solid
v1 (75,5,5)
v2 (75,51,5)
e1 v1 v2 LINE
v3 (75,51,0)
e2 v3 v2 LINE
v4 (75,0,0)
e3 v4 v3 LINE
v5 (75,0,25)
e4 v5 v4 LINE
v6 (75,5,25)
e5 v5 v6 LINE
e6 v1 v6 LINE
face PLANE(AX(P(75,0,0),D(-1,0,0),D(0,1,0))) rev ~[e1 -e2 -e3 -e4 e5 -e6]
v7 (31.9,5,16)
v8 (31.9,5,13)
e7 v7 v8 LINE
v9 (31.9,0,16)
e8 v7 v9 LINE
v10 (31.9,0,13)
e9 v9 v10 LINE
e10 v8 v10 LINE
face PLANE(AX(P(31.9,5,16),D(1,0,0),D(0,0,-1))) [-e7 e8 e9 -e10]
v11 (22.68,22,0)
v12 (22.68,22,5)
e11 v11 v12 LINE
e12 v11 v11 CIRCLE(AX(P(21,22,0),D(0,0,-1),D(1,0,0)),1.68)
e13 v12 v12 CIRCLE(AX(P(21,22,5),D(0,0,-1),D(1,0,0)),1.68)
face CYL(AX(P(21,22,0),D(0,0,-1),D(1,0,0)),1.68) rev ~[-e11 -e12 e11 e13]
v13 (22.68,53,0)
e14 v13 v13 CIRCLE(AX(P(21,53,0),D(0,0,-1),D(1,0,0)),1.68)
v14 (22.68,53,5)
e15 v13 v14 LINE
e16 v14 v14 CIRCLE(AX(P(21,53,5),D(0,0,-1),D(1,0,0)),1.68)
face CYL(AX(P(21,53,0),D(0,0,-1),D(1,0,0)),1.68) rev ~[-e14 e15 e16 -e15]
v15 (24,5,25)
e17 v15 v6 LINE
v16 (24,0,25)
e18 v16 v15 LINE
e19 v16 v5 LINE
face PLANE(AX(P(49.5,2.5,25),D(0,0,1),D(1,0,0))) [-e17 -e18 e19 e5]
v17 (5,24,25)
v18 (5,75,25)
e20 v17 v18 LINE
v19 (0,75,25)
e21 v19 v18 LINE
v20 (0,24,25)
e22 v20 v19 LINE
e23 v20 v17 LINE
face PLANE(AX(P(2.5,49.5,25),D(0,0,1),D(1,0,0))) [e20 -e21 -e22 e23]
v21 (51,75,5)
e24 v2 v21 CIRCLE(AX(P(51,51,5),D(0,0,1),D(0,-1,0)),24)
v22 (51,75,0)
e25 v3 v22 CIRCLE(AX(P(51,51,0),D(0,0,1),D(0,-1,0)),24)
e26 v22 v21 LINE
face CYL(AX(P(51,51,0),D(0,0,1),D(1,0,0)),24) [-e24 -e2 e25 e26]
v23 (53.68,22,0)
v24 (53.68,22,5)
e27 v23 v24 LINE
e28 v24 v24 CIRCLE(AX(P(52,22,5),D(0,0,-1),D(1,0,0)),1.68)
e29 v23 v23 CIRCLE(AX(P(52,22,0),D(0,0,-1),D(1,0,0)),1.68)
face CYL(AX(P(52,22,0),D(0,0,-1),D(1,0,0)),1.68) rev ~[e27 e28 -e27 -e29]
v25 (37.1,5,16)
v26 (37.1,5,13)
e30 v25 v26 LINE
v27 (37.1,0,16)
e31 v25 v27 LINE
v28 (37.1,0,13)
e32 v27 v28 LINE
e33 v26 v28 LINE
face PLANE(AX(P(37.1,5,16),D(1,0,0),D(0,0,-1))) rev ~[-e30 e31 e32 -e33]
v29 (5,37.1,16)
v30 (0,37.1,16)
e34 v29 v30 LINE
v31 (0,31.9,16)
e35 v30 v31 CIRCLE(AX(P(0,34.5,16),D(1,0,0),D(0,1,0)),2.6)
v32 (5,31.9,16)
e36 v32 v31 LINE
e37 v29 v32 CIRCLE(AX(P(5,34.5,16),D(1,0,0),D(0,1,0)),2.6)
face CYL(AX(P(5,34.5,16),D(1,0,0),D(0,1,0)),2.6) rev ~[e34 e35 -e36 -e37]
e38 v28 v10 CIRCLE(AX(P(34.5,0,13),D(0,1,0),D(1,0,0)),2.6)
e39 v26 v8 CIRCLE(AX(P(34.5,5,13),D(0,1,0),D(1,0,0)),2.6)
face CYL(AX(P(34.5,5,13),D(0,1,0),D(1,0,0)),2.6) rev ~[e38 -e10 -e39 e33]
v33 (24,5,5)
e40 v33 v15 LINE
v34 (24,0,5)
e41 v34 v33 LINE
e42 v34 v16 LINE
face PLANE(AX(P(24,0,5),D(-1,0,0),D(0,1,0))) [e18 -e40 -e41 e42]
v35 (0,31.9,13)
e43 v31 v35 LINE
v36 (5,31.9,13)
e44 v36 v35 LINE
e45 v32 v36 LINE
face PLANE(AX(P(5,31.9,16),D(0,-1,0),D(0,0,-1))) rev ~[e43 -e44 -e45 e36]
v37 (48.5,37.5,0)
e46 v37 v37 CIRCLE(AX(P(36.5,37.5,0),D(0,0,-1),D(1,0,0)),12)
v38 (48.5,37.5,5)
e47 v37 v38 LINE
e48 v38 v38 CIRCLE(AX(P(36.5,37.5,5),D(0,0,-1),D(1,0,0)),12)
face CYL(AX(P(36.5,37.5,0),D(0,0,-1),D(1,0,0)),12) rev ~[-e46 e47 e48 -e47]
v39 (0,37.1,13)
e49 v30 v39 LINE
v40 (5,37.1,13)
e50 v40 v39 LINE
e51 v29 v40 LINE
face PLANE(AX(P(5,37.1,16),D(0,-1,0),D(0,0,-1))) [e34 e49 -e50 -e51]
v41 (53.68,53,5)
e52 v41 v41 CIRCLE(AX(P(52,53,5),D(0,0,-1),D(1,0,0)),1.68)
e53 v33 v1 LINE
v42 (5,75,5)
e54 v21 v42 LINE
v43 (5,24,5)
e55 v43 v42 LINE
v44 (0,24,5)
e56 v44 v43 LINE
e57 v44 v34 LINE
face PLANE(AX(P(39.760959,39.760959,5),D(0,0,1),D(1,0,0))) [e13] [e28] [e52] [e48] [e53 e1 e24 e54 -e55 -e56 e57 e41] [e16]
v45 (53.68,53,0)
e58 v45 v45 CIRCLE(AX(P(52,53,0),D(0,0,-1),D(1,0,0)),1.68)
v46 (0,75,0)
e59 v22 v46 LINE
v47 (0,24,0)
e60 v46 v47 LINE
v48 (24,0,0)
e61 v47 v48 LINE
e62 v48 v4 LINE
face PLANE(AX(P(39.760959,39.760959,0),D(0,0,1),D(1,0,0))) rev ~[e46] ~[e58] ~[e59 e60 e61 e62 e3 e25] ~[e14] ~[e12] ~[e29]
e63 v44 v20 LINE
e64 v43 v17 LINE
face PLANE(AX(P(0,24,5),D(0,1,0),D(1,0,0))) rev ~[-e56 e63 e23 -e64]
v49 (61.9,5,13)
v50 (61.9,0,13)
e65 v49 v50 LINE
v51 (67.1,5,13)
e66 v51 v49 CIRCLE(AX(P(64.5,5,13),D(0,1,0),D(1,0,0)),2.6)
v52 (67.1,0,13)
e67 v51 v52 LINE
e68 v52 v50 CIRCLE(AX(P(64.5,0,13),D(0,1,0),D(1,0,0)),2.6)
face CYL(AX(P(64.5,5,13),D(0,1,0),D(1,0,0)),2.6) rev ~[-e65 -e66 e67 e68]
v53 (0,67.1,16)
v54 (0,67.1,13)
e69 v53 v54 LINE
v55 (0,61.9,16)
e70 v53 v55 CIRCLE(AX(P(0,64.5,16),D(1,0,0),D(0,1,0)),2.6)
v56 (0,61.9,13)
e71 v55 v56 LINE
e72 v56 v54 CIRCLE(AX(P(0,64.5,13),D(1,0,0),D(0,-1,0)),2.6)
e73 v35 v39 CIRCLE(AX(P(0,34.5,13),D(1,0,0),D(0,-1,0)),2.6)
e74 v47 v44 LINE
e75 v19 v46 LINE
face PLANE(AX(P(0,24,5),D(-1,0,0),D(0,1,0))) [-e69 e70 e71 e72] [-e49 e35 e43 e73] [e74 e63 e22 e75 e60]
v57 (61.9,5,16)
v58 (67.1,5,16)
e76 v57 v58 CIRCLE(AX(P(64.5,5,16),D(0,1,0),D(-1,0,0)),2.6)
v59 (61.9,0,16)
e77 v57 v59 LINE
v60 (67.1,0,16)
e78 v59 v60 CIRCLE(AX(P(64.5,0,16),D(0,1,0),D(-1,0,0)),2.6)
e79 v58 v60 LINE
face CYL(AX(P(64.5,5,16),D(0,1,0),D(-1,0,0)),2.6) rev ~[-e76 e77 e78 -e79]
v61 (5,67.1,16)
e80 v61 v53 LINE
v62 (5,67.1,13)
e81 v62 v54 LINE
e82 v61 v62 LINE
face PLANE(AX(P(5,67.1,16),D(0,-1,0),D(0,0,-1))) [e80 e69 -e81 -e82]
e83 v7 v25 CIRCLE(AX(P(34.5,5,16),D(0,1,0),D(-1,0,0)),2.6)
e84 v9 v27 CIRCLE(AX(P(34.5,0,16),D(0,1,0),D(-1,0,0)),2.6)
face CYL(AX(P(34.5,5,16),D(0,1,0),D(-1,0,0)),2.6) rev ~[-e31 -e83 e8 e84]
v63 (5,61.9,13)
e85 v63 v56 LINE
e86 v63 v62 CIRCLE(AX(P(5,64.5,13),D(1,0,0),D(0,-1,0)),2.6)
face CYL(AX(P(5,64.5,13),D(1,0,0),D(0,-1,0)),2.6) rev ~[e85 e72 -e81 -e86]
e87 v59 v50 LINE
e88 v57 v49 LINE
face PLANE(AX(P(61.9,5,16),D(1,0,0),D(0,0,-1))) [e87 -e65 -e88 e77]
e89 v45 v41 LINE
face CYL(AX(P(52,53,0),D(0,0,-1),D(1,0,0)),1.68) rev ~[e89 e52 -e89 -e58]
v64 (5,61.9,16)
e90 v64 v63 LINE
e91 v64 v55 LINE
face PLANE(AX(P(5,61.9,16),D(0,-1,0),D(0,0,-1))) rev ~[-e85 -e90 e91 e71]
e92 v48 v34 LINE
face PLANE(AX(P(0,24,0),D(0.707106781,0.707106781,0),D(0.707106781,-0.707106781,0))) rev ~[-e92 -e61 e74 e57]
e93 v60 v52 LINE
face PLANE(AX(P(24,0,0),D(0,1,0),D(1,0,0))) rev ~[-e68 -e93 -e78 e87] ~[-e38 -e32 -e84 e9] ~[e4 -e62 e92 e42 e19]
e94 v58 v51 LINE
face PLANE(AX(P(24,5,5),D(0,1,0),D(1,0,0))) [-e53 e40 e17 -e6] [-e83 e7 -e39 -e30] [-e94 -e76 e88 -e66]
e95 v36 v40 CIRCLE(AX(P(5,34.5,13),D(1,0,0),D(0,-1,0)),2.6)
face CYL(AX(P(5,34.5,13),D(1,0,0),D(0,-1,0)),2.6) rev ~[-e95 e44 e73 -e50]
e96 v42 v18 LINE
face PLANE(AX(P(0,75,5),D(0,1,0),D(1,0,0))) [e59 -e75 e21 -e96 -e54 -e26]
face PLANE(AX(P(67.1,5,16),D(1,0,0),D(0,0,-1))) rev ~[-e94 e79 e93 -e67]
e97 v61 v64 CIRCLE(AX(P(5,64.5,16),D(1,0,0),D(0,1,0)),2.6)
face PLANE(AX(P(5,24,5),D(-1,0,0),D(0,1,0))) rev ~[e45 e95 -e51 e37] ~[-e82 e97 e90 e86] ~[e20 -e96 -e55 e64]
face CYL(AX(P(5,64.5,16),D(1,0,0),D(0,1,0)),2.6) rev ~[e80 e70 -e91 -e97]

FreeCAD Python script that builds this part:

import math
import FreeCAD as App
import Part
import Sketcher
Q = App.Units.Quantity


def edges_at(feature, points):
    """Names of the edges that pass closest to the given points."""
    edges = feature.Shape.Edges
    near = lambda p: min(range(len(edges)), key=lambda i: edges[i].distToShape(Part.Vertex(*p))[0])
    return sorted({f"Edge{near(p) + 1}" for p in points})

doc = App.newDocument("Part")
body = doc.addObject("PartDesign::Body", "Body")

# Sketch on XY plane
sketch1 = body.newObject("Sketcher::SketchObject", "Sketch")
sketch1.AttachmentSupport = (doc.getObject("XY_Plane"), [""])
sketch1.MapMode = "FlatFace"
sketch1.addGeometry(Part.LineSegment(App.Vector(75, 0, 0), App.Vector(75, 75, 0)), False)
sketch1.addGeometry(Part.LineSegment(App.Vector(75, 75, 0), App.Vector(0, 75, 0)), False)
sketch1.addGeometry(Part.LineSegment(App.Vector(0, 75, 0), App.Vector(0, 24, 0)), False)
sketch1.addGeometry(Part.LineSegment(App.Vector(0, 24, 0), App.Vector(24, 0, 0)), False)
sketch1.addGeometry(Part.LineSegment(App.Vector(24, 0, 0), App.Vector(75, 0, 0)), False)
sketch1.addConstraint(Sketcher.Constraint("Coincident", 0, 2, 1, 1))
sketch1.addConstraint(Sketcher.Constraint("Coincident", 1, 2, 2, 1))
sketch1.addConstraint(Sketcher.Constraint("Coincident", 2, 2, 3, 1))
sketch1.addConstraint(Sketcher.Constraint("Coincident", 3, 2, 4, 1))
sketch1.addConstraint(Sketcher.Constraint("Coincident", 4, 2, 0, 1))
sketch1.addConstraint(Sketcher.Constraint("Vertical", 0))
sketch1.addConstraint(Sketcher.Constraint("Horizontal", 1))
sketch1.addConstraint(Sketcher.Constraint("Vertical", 2))
sketch1.addConstraint(Sketcher.Constraint("Horizontal", 4))
sketch1.addConstraint(Sketcher.Constraint("PointOnObject", 1, 2, -2))
sketch1.addConstraint(Sketcher.Constraint("PointOnObject", 3, 2, -1))
sketch1.addConstraint(Sketcher.Constraint("Equal", 1, 0))
sketch1.addConstraint(Sketcher.Constraint("Equal", 4, 2))
sketch1.addConstraint(Sketcher.Constraint("DistanceX", 1, 2, 1, 1, Q("75 mm")))
sketch1.addConstraint(Sketcher.Constraint("DistanceX", 4, 1, 4, 2, Q("51 mm")))
pad1 = body.newObject("PartDesign::Pad", "Pad")
pad1.Profile = sketch1
pad1.Length = 5

# Sketch on XY plane
sketch2 = body.newObject("Sketcher::SketchObject", "Sketch001")
sketch2.AttachmentSupport = (doc.getObject("XY_Plane"), [""])
sketch2.MapMode = "FlatFace"
sketch2.addGeometry(Part.Circle(App.Vector(21, 22, 0), App.Vector(0, 0, 1), 1.7), False)
sketch2.addGeometry(Part.Circle(App.Vector(52, 22, 0), App.Vector(0, 0, 1), 1.7), False)
sketch2.addGeometry(Part.Circle(App.Vector(52, 53, 0), App.Vector(0, 0, 1), 1.7), False)
sketch2.addGeometry(Part.Circle(App.Vector(21, 53, 0), App.Vector(0, 0, 1), 1.7), False)
sketch2.addGeometry(Part.Circle(App.Vector(36.5, 37.5, 0), App.Vector(0, 0, 1), 12), False)
sketch2.addConstraint(Sketcher.Constraint("Equal", 0, 1))
sketch2.addConstraint(Sketcher.Constraint("Equal", 1, 2))
sketch2.addConstraint(Sketcher.Constraint("Equal", 2, 3))
sketch2.addConstraint(Sketcher.Constraint("Horizontal", 0, 3, 1, 3))
sketch2.addConstraint(Sketcher.Constraint("Horizontal", 2, 3, 3, 3))
sketch2.addConstraint(Sketcher.Constraint("Vertical", 1, 3, 2, 3))
sketch2.addConstraint(Sketcher.Constraint("Vertical", 0, 3, 3, 3))
sketch2.addConstraint(Sketcher.Constraint("Diameter", 4, Q("24 mm")))
sketch2.addConstraint(Sketcher.Constraint("Diameter", 0, Q("3.36 mm")))
sketch2.addConstraint(Sketcher.Constraint("DistanceX", -1, 1, 0, 3, Q("21 mm")))
sketch2.addConstraint(Sketcher.Constraint("DistanceY", -1, 1, 0, 3, Q("22 mm")))
sketch2.addConstraint(Sketcher.Constraint("DistanceX", -1, 1, 1, 3, Q("52 mm")))
sketch2.addConstraint(Sketcher.Constraint("DistanceY", -1, 1, 2, 3, Q("53 mm")))
sketch2.addConstraint(Sketcher.Constraint("DistanceX", -1, 1, 4, 3, Q("36.5 mm")))
sketch2.addConstraint(Sketcher.Constraint("DistanceY", -1, 1, 4, 3, Q("37.5 mm")))
pocket1 = body.newObject("PartDesign::Pocket", "Pocket")
pocket1.Profile = sketch2
pocket1.Length = 5
pocket1.Reversed = True
doc.recompute()

fillet = body.newObject("PartDesign::Fillet", "Fillet")
fillet.Base = (pocket1, edges_at(pocket1, [(75, 75, 2.5)]))
fillet.Radius = 24

# Sketch on XY plane
sketch3 = body.newObject("Sketcher::SketchObject", "Sketch002")
sketch3.AttachmentSupport = (doc.getObject("XY_Plane"), [""])
sketch3.MapMode = "FlatFace"
sketch3.AttachmentOffset = App.Placement(App.Vector(0, 0, 5), App.Rotation())
sketch3.addGeometry(Part.LineSegment(App.Vector(0, 75, 0), App.Vector(0, 24, 0)), False)
sketch3.addGeometry(Part.LineSegment(App.Vector(0, 24, 0), App.Vector(5, 24, 0)), False)
sketch3.addGeometry(Part.LineSegment(App.Vector(5, 24, 0), App.Vector(5, 75, 0)), False)
sketch3.addGeometry(Part.LineSegment(App.Vector(5, 75, 0), App.Vector(0, 75, 0)), False)
sketch3.addGeometry(Part.LineSegment(App.Vector(24, 5, 0), App.Vector(24, 0, 0)), False)
sketch3.addGeometry(Part.LineSegment(App.Vector(24, 0, 0), App.Vector(75, 0, 0)), False)
sketch3.addGeometry(Part.LineSegment(App.Vector(75, 0, 0), App.Vector(75, 5, 0)), False)
sketch3.addGeometry(Part.LineSegment(App.Vector(75, 5, 0), App.Vector(24, 5, 0)), False)
sketch3.addConstraint(Sketcher.Constraint("Coincident", 0, 2, 1, 1))
sketch3.addConstraint(Sketcher.Constraint("Coincident", 1, 2, 2, 1))
sketch3.addConstraint(Sketcher.Constraint("Coincident", 2, 2, 3, 1))
sketch3.addConstraint(Sketcher.Constraint("Coincident", 3, 2, 0, 1))
sketch3.addConstraint(Sketcher.Constraint("Coincident", 4, 2, 5, 1))
sketch3.addConstraint(Sketcher.Constraint("Coincident", 5, 2, 6, 1))
sketch3.addConstraint(Sketcher.Constraint("Coincident", 6, 2, 7, 1))
sketch3.addConstraint(Sketcher.Constraint("Coincident", 7, 2, 4, 1))
sketch3.addConstraint(Sketcher.Constraint("Vertical", 0))
sketch3.addConstraint(Sketcher.Constraint("Horizontal", 1))
sketch3.addConstraint(Sketcher.Constraint("Vertical", 2))
sketch3.addConstraint(Sketcher.Constraint("Horizontal", 3))
sketch3.addConstraint(Sketcher.Constraint("Vertical", 4))
sketch3.addConstraint(Sketcher.Constraint("Horizontal", 5))
sketch3.addConstraint(Sketcher.Constraint("Vertical", 6))
sketch3.addConstraint(Sketcher.Constraint("Horizontal", 7))
sketch3.addConstraint(Sketcher.Constraint("PointOnObject", 0, 2, -2))
sketch3.addConstraint(Sketcher.Constraint("PointOnObject", 4, 2, -1))
sketch3.addConstraint(Sketcher.Constraint("Equal", 7, 0))
sketch3.addConstraint(Sketcher.Constraint("Equal", 3, 4))
sketch3.addConstraint(Sketcher.Constraint("DistanceX", 1, 1, 1, 2, Q("5 mm")))
sketch3.addConstraint(Sketcher.Constraint("DistanceX", 5, 1, 5, 2, Q("51 mm")))
sketch3.addConstraint(Sketcher.Constraint("DistanceY", -1, 1, 0, 2, Q("24 mm")))
sketch3.addConstraint(Sketcher.Constraint("DistanceX", -1, 1, 4, 2, Q("24 mm")))
pad2 = body.newObject("PartDesign::Pad", "Pad001")
pad2.Profile = sketch3
pad2.Length = 20

# Sketch on YZ plane
sketch4 = body.newObject("Sketcher::SketchObject", "Sketch003")
sketch4.AttachmentSupport = (doc.getObject("YZ_Plane"), [""])
sketch4.MapMode = "FlatFace"
sketch4.AttachmentOffset = App.Placement(App.Vector(0, 0, 5), App.Rotation())
sketch4.addGeometry(Part.ArcOfCircle(Part.Circle(App.Vector(64.5, 16, 0), App.Vector(0, 0, 1), 2.6), math.radians(0), math.radians(180)), False)
sketch4.addGeometry(Part.LineSegment(App.Vector(61.9, 16, 0), App.Vector(61.9, 13, 0)), False)
sketch4.addGeometry(Part.ArcOfCircle(Part.Circle(App.Vector(64.5, 13, 0), App.Vector(0, 0, 1), 2.6), math.radians(180), math.radians(360)), False)
sketch4.addGeometry(Part.LineSegment(App.Vector(67.1, 13, 0), App.Vector(67.1, 16, 0)), False)
sketch4.addGeometry(Part.ArcOfCircle(Part.Circle(App.Vector(34.5, 16, 0), App.Vector(0, 0, 1), 2.6), math.radians(0), math.radians(180)), False)
sketch4.addGeometry(Part.LineSegment(App.Vector(31.9, 16, 0), App.Vector(31.9, 13, 0)), False)
sketch4.addGeometry(Part.ArcOfCircle(Part.Circle(App.Vector(34.5, 13, 0), App.Vector(0, 0, 1), 2.6), math.radians(180), math.radians(360)), False)
sketch4.addGeometry(Part.LineSegment(App.Vector(37.1, 13, 0), App.Vector(37.1, 16, 0)), False)
sketch4.addConstraint(Sketcher.Constraint("Tangent", 0, 2, 1, 1))
sketch4.addConstraint(Sketcher.Constraint("Tangent", 1, 2, 2, 1))
sketch4.addConstraint(Sketcher.Constraint("Tangent", 2, 2, 3, 1))
sketch4.addConstraint(Sketcher.Constraint("Tangent", 3, 2, 0, 1))
sketch4.addConstraint(Sketcher.Constraint("Tangent", 4, 2, 5, 1))
sketch4.addConstraint(Sketcher.Constraint("Tangent", 5, 2, 6, 1))
sketch4.addConstraint(Sketcher.Constraint("Tangent", 6, 2, 7, 1))
sketch4.addConstraint(Sketcher.Constraint("Tangent", 7, 2, 4, 1))
sketch4.addConstraint(Sketcher.Constraint("Vertical", 1))
sketch4.addConstraint(Sketcher.Constraint("Vertical", 3))
sketch4.addConstraint(Sketcher.Constraint("Vertical", 5))
sketch4.addConstraint(Sketcher.Constraint("Vertical", 7))
sketch4.addConstraint(Sketcher.Constraint("Equal", 2, 4))
sketch4.addConstraint(Sketcher.Constraint("Horizontal", 0, 3, 4, 3))
sketch4.addConstraint(Sketcher.Constraint("Horizontal", 2, 3, 6, 3))
sketch4.addConstraint(Sketcher.Constraint("Radius", 0, Q("2.6 mm")))
sketch4.addConstraint(Sketcher.Constraint("DistanceY", 1, 2, 1, 1, Q("3 mm")))
sketch4.addConstraint(Sketcher.Constraint("DistanceY", -1, 1, 0, 3, Q("16 mm")))
sketch4.addConstraint(Sketcher.Constraint("DistanceX", 4, 3, 0, 3, Q("30 mm")))
sketch4.addConstraint(Sketcher.Constraint("DistanceX", -1, 1, 0, 3, Q("64.5 mm")))
pocket2 = body.newObject("PartDesign::Pocket", "Pocket001")
pocket2.Profile = sketch4
pocket2.Length = 5

# Sketch on XZ plane
sketch5 = body.newObject("Sketcher::SketchObject", "Sketch004")
sketch5.AttachmentSupport = (doc.getObject("XZ_Plane"), [""])
sketch5.MapMode = "FlatFace"
sketch5.AttachmentOffset = App.Placement(App.Vector(0, 0, -5), App.Rotation())
sketch5.addGeometry(Part.ArcOfCircle(Part.Circle(App.Vector(64.5, 16, 0), App.Vector(0, 0, 1), 2.6), math.radians(0), math.radians(180)), False)
sketch5.addGeometry(Part.LineSegment(App.Vector(67.1, 16, 0), App.Vector(67.1, 13, 0)), False)
sketch5.addGeometry(Part.ArcOfCircle(Part.Circle(App.Vector(64.5, 13, 0), App.Vector(0, 0, 1), 2.6), math.radians(180), math.radians(360)), False)
sketch5.addGeometry(Part.LineSegment(App.Vector(61.9, 13, 0), App.Vector(61.9, 16, 0)), False)
sketch5.addGeometry(Part.LineSegment(App.Vector(31.9, 13, 0), App.Vector(31.9, 16, 0)), False)
sketch5.addGeometry(Part.ArcOfCircle(Part.Circle(App.Vector(34.5, 16, 0), App.Vector(0, 0, 1), 2.6), math.radians(0), math.radians(180)), False)
sketch5.addGeometry(Part.LineSegment(App.Vector(37.1, 16, 0), App.Vector(37.1, 13, 0)), False)
sketch5.addGeometry(Part.ArcOfCircle(Part.Circle(App.Vector(34.5, 13, 0), App.Vector(0, 0, 1), 2.6), math.radians(180), math.radians(360)), False)
sketch5.addConstraint(Sketcher.Constraint("Tangent", 0, 1, 1, 1))
sketch5.addConstraint(Sketcher.Constraint("Tangent", 1, 2, 2, 2))
sketch5.addConstraint(Sketcher.Constraint("Tangent", 2, 1, 3, 1))
sketch5.addConstraint(Sketcher.Constraint("Tangent", 3, 2, 0, 2))
sketch5.addConstraint(Sketcher.Constraint("Tangent", 4, 2, 5, 2))
sketch5.addConstraint(Sketcher.Constraint("Tangent", 5, 1, 6, 1))
sketch5.addConstraint(Sketcher.Constraint("Tangent", 6, 2, 7, 2))
sketch5.addConstraint(Sketcher.Constraint("Tangent", 7, 1, 4, 1))
sketch5.addConstraint(Sketcher.Constraint("Vertical", 1))
sketch5.addConstraint(Sketcher.Constraint("Vertical", 3))
sketch5.addConstraint(Sketcher.Constraint("Vertical", 4))
sketch5.addConstraint(Sketcher.Constraint("Vertical", 6))
sketch5.addConstraint(Sketcher.Constraint("Equal", 2, 5))
sketch5.addConstraint(Sketcher.Constraint("Horizontal", 0, 3, 5, 3))
sketch5.addConstraint(Sketcher.Constraint("Horizontal", 2, 3, 7, 3))
sketch5.addConstraint(Sketcher.Constraint("Radius", 0, Q("2.6 mm")))
sketch5.addConstraint(Sketcher.Constraint("DistanceY", 1, 2, 1, 1, Q("3 mm")))
sketch5.addConstraint(Sketcher.Constraint("DistanceY", -1, 1, 0, 3, Q("16 mm")))
sketch5.addConstraint(Sketcher.Constraint("DistanceX", 5, 3, 0, 3, Q("30 mm")))
sketch5.addConstraint(Sketcher.Constraint("DistanceX", -1, 1, 0, 3, Q("64.5 mm")))
pocket3 = body.newObject("PartDesign::Pocket", "Pocket002")
pocket3.Profile = sketch5
pocket3.Length = 5
pocket3.Reversed = True

doc.recompute()
